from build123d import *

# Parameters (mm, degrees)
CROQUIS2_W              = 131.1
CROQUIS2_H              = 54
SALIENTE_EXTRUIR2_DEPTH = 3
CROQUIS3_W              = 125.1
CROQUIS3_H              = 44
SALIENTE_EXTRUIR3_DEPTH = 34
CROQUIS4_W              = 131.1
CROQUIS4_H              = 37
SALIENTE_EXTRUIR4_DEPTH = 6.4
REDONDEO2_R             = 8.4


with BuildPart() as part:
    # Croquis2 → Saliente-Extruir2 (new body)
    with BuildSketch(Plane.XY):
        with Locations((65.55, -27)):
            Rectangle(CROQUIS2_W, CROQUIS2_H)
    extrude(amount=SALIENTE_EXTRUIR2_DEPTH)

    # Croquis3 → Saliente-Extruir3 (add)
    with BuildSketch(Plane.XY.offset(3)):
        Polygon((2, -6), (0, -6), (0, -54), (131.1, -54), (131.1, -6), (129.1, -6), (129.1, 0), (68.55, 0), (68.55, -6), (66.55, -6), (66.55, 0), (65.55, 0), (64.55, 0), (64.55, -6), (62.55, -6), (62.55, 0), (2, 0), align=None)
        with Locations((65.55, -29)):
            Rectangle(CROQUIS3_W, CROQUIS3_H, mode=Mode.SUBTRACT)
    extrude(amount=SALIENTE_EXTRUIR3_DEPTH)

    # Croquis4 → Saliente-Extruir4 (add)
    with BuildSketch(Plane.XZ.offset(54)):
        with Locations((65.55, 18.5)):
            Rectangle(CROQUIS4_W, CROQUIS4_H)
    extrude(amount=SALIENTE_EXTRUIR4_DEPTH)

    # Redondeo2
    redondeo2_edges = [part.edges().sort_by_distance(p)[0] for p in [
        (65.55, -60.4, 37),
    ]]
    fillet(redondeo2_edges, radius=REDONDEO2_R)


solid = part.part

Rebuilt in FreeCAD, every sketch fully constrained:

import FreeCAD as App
import Part
import Sketcher
from FreeCAD import Vector
Q = App.Units.Quantity


def edges_at(feature, points):
    """Names of the edges that pass closest to the given points."""
    edges = feature.Shape.Edges
    near = lambda p: min(range(len(edges)), key=lambda i: edges[i].distToShape(Part.Vertex(*p))[0])
    return sorted({f"Edge{near(p) + 1}" for p in points})

doc = App.newDocument("Part")
params = doc.addObject("Spreadsheet::Sheet", "Params")
for row, (alias, value) in enumerate([
    ("sketch1_height", "54 mm"),
    ("sketch1_width", "131.1 mm"),
    ("pad1_length", "3 mm"),
    ("sketch2_width", "2 mm"),
    ("sketch2_height", "48 mm"),
    ("sketch2_height2", "6 mm"),
    ("sketch2_height3", "44 mm"),
    ("sketch2_width2", "131.1 mm"),
    ("pad2_length", "34 mm"),
    ("sketch3_height", "37 mm"),
    ("sketch3_width", "131.1 mm"),
    ("pad3_length", "6.4 mm"),
    ("fillet_radius", "8.4 mm"),
], start=1):
    params.set(f"A{row}", alias)
    params.set(f"B{row}", "=" + value)
    params.setAlias(f"B{row}", alias)

body = doc.addObject("PartDesign::Body", "Body")

# Sketch on XY plane
sketch1 = body.newObject("Sketcher::SketchObject", "Sketch")
sketch1.AttachmentSupport = (doc.getObject("XY_Plane"), [""])
sketch1.MapMode = "FlatFace"
sketch1.addGeometry(Part.LineSegment(Vector(0, 0, 0), Vector(0, -54, 0)), False)
sketch1.addGeometry(Part.LineSegment(Vector(0, -54, 0), Vector(131, -54, 0)), False)
sketch1.addGeometry(Part.LineSegment(Vector(131, -54, 0), Vector(131, 0, 0)), False)
sketch1.addGeometry(Part.LineSegment(Vector(131, 0, 0), Vector(0, 0, 0)), False)
sketch1.addConstraint(Sketcher.Constraint("Coincident", 0, 2, 1, 1))
sketch1.addConstraint(Sketcher.Constraint("Coincident", 1, 2, 2, 1))
sketch1.addConstraint(Sketcher.Constraint("Coincident", 2, 2, 3, 1))
sketch1.addConstraint(Sketcher.Constraint("Coincident", 3, 2, 0, 1))
sketch1.addConstraint(Sketcher.Constraint("Vertical", 0))
sketch1.addConstraint(Sketcher.Constraint("Horizontal", 1))
sketch1.addConstraint(Sketcher.Constraint("Vertical", 2))
sketch1.addConstraint(Sketcher.Constraint("Horizontal", 3))
sketch1.addConstraint(Sketcher.Constraint("Coincident", 3, 2, -1, 1))
sketch1.addConstraint(Sketcher.Constraint("DistanceY", 0, 2, 0, 1, Q("54 mm")))
sketch1.addConstraint(Sketcher.Constraint("DistanceX", 1, 1, 1, 2, Q("131.1 mm")))
sketch1.setExpression("Constraints[9]", "Params.sketch1_height")
sketch1.setExpression("Constraints[10]", "Params.sketch1_width")
pad1 = body.newObject("PartDesign::Pad", "Pad")
pad1.Profile = sketch1
pad1.setExpression("Length", "Params.pad1_length")

# Sketch on XY plane
sketch2 = body.newObject("Sketcher::SketchObject", "Sketch001")
sketch2.AttachmentSupport = (doc.getObject("XY_Plane"), [""])
sketch2.MapMode = "FlatFace"
sketch2.AttachmentOffset = App.Placement(Vector(0, 0, 3), App.Rotation())
sketch2.addGeometry(Part.LineSegment(Vector(2, -6, 0), Vector(0, -6, 0)), False)
sketch2.addGeometry(Part.LineSegment(Vector(0, -6, 0), Vector(0, -54, 0)), False)
sketch2.addGeometry(Part.LineSegment(Vector(0, -54, 0), Vector(131.1, -54, 0)), False)
sketch2.addGeometry(Part.LineSegment(Vector(131.1, -54, 0), Vector(131.1, -6, 0)), False)
sketch2.addGeometry(Part.LineSegment(Vector(131.1, -6, 0), Vector(129.1, -6, 0)), False)
sketch2.addGeometry(Part.LineSegment(Vector(129.1, -6, 0), Vector(129.1, 0, 0)), False)
sketch2.addGeometry(Part.LineSegment(Vector(129.1, 0, 0), Vector(68.5, 0, 0)), False)
sketch2.addGeometry(Part.LineSegment(Vector(68.5, 0, 0), Vector(68.5, -6, 0)), False)
sketch2.addGeometry(Part.LineSegment(Vector(68.5, -6, 0), Vector(66.5, -6, 0)), False)
sketch2.addGeometry(Part.LineSegment(Vector(66.5, -6, 0), Vector(66.5, 0, 0)), False)
sketch2.addGeometry(Part.LineSegment(Vector(66.5, 0, 0), Vector(64.5, 0, 0)), False)
sketch2.addGeometry(Part.LineSegment(Vector(64.5, 0, 0), Vector(64.5, -6, 0)), False)
sketch2.addGeometry(Part.LineSegment(Vector(64.5, -6, 0), Vector(62.5, -6, 0)), False)
sketch2.addGeometry(Part.LineSegment(Vector(62.5, -6, 0), Vector(62.5, 0, 0)), False)
sketch2.addGeometry(Part.LineSegment(Vector(62.5, 0, 0), Vector(2, 0, 0)), False)
sketch2.addGeometry(Part.LineSegment(Vector(2, 0, 0), Vector(2, -6, 0)), False)
sketch2.addGeometry(Part.LineSegment(Vector(128.1, -51, 0), Vector(3, -51, 0)), False)
sketch2.addGeometry(Part.LineSegment(Vector(3, -51, 0), Vector(3, -7, 0)), False)
sketch2.addGeometry(Part.LineSegment(Vector(3, -7, 0), Vector(128.1, -7, 0)), False)
sketch2.addGeometry(Part.LineSegment(Vector(128.1, -7, 0), Vector(128.1, -51, 0)), False)
sketch2.addConstraint(Sketcher.Constraint("Coincident", 0, 2, 1, 1))
sketch2.addConstraint(Sketcher.Constraint("Coincident", 1, 2, 2, 1))
sketch2.addConstraint(Sketcher.Constraint("Coincident", 2, 2, 3, 1))
sketch2.addConstraint(Sketcher.Constraint("Coincident", 3, 2, 4, 1))
sketch2.addConstraint(Sketcher.Constraint("Coincident", 4, 2, 5, 1))
sketch2.addConstraint(Sketcher.Constraint("Coincident", 5, 2, 6, 1))
sketch2.addConstraint(Sketcher.Constraint("Coincident", 6, 2, 7, 1))
sketch2.addConstraint(Sketcher.Constraint("Coincident", 7, 2, 8, 1))
sketch2.addConstraint(Sketcher.Constraint("Coincident", 8, 2, 9, 1))
sketch2.addConstraint(Sketcher.Constraint("Coincident", 9, 2, 10, 1))
sketch2.addConstraint(Sketcher.Constraint("Coincident", 10, 2, 11, 1))
sketch2.addConstraint(Sketcher.Constraint("Coincident", 11, 2, 12, 1))
sketch2.addConstraint(Sketcher.Constraint("Coincident", 12, 2, 13, 1))
sketch2.addConstraint(Sketcher.Constraint("Coincident", 13, 2, 14, 1))
sketch2.addConstraint(Sketcher.Constraint("Coincident", 14, 2, 15, 1))
sketch2.addConstraint(Sketcher.Constraint("Coincident", 15, 2, 0, 1))
sketch2.addConstraint(Sketcher.Constraint("Coincident", 16, 2, 17, 1))
sketch2.addConstraint(Sketcher.Constraint("Coincident", 17, 2, 18, 1))
sketch2.addConstraint(Sketcher.Constraint("Coincident", 18, 2, 19, 1))
sketch2.addConstraint(Sketcher.Constraint("Coincident", 19, 2, 16, 1))
sketch2.addConstraint(Sketcher.Constraint("Horizontal", 0))
sketch2.addConstraint(Sketcher.Constraint("Vertical", 1))
sketch2.addConstraint(Sketcher.Constraint("Horizontal", 2))
sketch2.addConstraint(Sketcher.Constraint("Vertical", 3))
sketch2.addConstraint(Sketcher.Constraint("Horizontal", 4))
sketch2.addConstraint(Sketcher.Constraint("Vertical", 5))
sketch2.addConstraint(Sketcher.Constraint("Horizontal", 6))
sketch2.addConstraint(Sketcher.Constraint("Vertical", 7))
sketch2.addConstraint(Sketcher.Constraint("Horizontal", 8))
sketch2.addConstraint(Sketcher.Constraint("Vertical", 9))
sketch2.addConstraint(Sketcher.Constraint("Horizontal", 10))
sketch2.addConstraint(Sketcher.Constraint("Vertical", 11))
sketch2.addConstraint(Sketcher.Constraint("Horizontal", 12))
sketch2.addConstraint(Sketcher.Constraint("Vertical", 13))
sketch2.addConstraint(Sketcher.Constraint("Horizontal", 14))
sketch2.addConstraint(Sketcher.Constraint("Vertical", 15))
sketch2.addConstraint(Sketcher.Constraint("Horizontal", 16))
sketch2.addConstraint(Sketcher.Constraint("Vertical", 17))
sketch2.addConstraint(Sketcher.Constraint("Horizontal", 18))
sketch2.addConstraint(Sketcher.Constraint("Vertical", 19))
sketch2.addConstraint(Sketcher.Constraint("PointOnObject", 0, 2, -2))
sketch2.addConstraint(Sketcher.Constraint("PointOnObject", 5, 2, -1))
sketch2.addConstraint(Sketcher.Constraint("PointOnObject", 9, 2, -1))
sketch2.addConstraint(Sketcher.Constraint("PointOnObject", 13, 2, -1))
sketch2.addConstraint(Sketcher.Constraint("Horizontal", 0, 2, 3, 2))
sketch2.addConstraint(Sketcher.Constraint("Horizontal", 4, 2, 7, 2))
sketch2.addConstraint(Sketcher.Constraint("Horizontal", 8, 2, 11, 2))
sketch2.addConstraint(Sketcher.Constraint("Equal", 0, 4))
sketch2.addConstraint(Sketcher.Constraint("Equal", 4, 8))
sketch2.addConstraint(Sketcher.Constraint("Equal", 8, 10))
sketch2.addConstraint(Sketcher.Constraint("Equal", 10, 12))
sketch2.addConstraint(Sketcher.Constraint("Equal", 6, 14))
sketch2.addConstraint(Sketcher.Constraint("DistanceX", 0, 2, 0, 1, Q("2 mm")))
sketch2.addConstraint(Sketcher.Constraint("DistanceY", 1, 2, 1, 1, Q("48 mm")))
sketch2.addConstraint(Sketcher.Constraint("DistanceY", 5, 1, 5, 2, Q("6 mm")))
sketch2.addConstraint(Sketcher.Constraint("DistanceY", 17, 1, 17, 2, Q("44 mm")))
sketch2.addConstraint(Sketcher.Constraint("DistanceX", 2, 1, 2, 2, Q("131.1 mm")))
sketch2.addConstraint(Sketcher.Constraint("DistanceX", 16, 2, 16, 1, Q("125.1 mm")))
sketch2.addConstraint(Sketcher.Constraint("DistanceX", -1, 1, 16, 2, Q("3 mm")))
sketch2.addConstraint(Sketcher.Constraint("DistanceY", 16, 2, -1, 1, Q("51 mm")))
sketch2.setExpression("Constraints[52]", "Params.sketch2_width")
sketch2.setExpression("Constraints[53]", "Params.sketch2_height")
sketch2.setExpression("Constraints[54]", "Params.sketch2_height2")
sketch2.setExpression("Constraints[55]", "Params.sketch2_height3")
sketch2.setExpression("Constraints[56]", "Params.sketch2_width2")
pad2 = body.newObject("PartDesign::Pad", "Pad001")
pad2.Profile = sketch2
pad2.setExpression("Length", "Params.pad2_length")

# Sketch on XZ plane
sketch3 = body.newObject("Sketcher::SketchObject", "Sketch002")
sketch3.AttachmentSupport = (doc.getObject("XZ_Plane"), [""])
sketch3.MapMode = "FlatFace"
sketch3.AttachmentOffset = App.Placement(Vector(0, 0, 54), App.Rotation())
sketch3.addGeometry(Part.LineSegment(Vector(0, 37, 0), Vector(0, 0, 0)), False)
sketch3.addGeometry(Part.LineSegment(Vector(0, 0, 0), Vector(131, 0, 0)), False)
sketch3.addGeometry(Part.LineSegment(Vector(131, 0, 0), Vector(131, 37, 0)), False)
sketch3.addGeometry(Part.LineSegment(Vector(131, 37, 0), Vector(0, 37, 0)), False)
sketch3.addConstraint(Sketcher.Constraint("Coincident", 0, 2, 1, 1))
sketch3.addConstraint(Sketcher.Constraint("Coincident", 1, 2, 2, 1))
sketch3.addConstraint(Sketcher.Constraint("Coincident", 2, 2, 3, 1))
sketch3.addConstraint(Sketcher.Constraint("Coincident", 3, 2, 0, 1))
sketch3.addConstraint(Sketcher.Constraint("Vertical", 0))
sketch3.addConstraint(Sketcher.Constraint("Horizontal", 1))
sketch3.addConstraint(Sketcher.Constraint("Vertical", 2))
sketch3.addConstraint(Sketcher.Constraint("Horizontal", 3))
sketch3.addConstraint(Sketcher.Constraint("Coincident", 0, 2, -1, 1))
sketch3.addConstraint(Sketcher.Constraint("DistanceY", 0, 2, 0, 1, Q("37 mm")))
sketch3.addConstraint(Sketcher.Constraint("DistanceX", 1, 1, 1, 2, Q("131.1 mm")))
sketch3.setExpression("Constraints[9]", "Params.sketch3_height")
sketch3.setExpression("Constraints[10]", "Params.sketch3_width")
pad3 = body.newObject("PartDesign::Pad", "Pad002")
pad3.Profile = sketch3
pad3.setExpression("Length", "Params.pad3_length")
doc.recompute()

fillet = body.newObject("PartDesign::Fillet", "Fillet")
fillet.Base = (pad3, edges_at(pad3, [(65.55, -60.4, 37)]))
fillet.setExpression("Radius", "Params.fillet_radius")

doc.recompute()
